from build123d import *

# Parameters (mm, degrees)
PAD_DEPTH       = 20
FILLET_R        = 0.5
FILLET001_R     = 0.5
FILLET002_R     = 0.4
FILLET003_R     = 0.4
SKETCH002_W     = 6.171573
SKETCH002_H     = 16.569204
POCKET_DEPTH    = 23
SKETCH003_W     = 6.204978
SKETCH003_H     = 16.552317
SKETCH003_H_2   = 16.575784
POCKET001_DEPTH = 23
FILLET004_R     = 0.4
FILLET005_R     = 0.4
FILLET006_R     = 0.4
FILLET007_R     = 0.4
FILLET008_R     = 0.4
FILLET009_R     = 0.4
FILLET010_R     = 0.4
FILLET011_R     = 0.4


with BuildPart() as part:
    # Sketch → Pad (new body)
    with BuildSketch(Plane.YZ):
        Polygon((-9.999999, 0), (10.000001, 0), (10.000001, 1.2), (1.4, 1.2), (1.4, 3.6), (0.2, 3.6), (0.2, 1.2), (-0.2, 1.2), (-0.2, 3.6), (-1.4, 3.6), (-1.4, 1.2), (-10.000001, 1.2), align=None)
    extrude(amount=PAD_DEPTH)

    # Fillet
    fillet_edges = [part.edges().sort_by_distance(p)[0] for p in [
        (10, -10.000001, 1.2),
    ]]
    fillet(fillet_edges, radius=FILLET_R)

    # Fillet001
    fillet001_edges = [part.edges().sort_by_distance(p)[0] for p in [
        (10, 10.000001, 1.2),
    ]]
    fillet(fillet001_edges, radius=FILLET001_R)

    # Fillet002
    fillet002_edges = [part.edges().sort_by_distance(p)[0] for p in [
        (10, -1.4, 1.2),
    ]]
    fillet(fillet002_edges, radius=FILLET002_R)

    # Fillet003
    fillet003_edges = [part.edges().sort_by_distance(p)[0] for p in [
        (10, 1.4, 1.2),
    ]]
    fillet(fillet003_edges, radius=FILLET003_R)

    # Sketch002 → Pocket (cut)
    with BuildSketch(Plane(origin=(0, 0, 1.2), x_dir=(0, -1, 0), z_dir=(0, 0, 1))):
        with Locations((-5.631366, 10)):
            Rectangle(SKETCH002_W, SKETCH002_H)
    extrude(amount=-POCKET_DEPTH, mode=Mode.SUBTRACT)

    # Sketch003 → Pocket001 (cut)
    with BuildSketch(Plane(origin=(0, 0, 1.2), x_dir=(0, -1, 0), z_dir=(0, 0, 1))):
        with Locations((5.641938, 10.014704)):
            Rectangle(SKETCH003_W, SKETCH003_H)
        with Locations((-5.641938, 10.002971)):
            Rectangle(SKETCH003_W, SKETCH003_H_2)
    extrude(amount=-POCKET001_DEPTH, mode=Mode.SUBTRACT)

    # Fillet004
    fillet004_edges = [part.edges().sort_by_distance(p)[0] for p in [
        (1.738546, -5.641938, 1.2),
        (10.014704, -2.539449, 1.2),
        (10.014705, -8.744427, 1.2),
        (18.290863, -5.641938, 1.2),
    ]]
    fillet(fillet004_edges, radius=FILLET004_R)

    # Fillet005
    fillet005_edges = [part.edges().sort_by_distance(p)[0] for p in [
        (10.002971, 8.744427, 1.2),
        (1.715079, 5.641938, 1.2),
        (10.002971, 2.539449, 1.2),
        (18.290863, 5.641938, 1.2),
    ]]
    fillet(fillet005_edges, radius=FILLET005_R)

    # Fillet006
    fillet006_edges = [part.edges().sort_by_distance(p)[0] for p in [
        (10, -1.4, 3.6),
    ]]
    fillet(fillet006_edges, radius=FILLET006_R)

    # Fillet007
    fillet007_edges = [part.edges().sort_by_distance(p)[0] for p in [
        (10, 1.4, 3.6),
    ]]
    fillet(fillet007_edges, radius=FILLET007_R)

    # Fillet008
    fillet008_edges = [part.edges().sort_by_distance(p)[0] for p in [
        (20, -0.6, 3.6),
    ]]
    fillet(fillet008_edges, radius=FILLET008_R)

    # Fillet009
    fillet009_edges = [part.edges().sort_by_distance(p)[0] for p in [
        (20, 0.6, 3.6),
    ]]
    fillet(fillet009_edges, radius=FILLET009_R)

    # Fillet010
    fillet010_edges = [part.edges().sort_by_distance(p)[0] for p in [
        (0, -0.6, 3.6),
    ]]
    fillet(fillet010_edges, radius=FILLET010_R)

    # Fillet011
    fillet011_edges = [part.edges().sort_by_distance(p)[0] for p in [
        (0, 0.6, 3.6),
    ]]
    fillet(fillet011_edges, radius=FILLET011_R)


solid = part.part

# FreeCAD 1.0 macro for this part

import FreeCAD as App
import Part
import Sketcher


def edges_at(feature, points):
    """Names of the edges that pass closest to the given points."""
    edges = feature.Shape.Edges
    near = lambda p: min(range(len(edges)), key=lambda i: edges[i].distToShape(Part.Vertex(*p))[0])
    return sorted({f"Edge{near(p) + 1}" for p in points})


def add_polygon(sketch, points):
    """Adds a closed chain of lines whose ends are joined by coincident constraints."""
    first, n = sketch.GeometryCount, len(points)
    for a, b in zip(points, points[1:] + points[:1]):
        sketch.addGeometry(Part.LineSegment(App.Vector(*a, 0), App.Vector(*b, 0)), False)
    for i in range(n):
        sketch.addConstraint(Sketcher.Constraint("Coincident", first + i, 2, first + (i + 1) % n, 1))

doc = App.newDocument("Part")
body = doc.addObject("PartDesign::Body", "Body")

# Sketch on YZ plane
sketch1 = body.newObject("Sketcher::SketchObject", "Sketch")
sketch1.AttachmentSupport = (doc.getObject("YZ_Plane"), [""])
sketch1.MapMode = "FlatFace"
add_polygon(sketch1, [(-10, 0), (10, 0), (10, 1.2), (1.4, 1.2), (1.4, 3.6), (0.2, 3.6), (0.2, 1.2), (-0.2, 1.2), (-0.2, 3.6), (-1.4, 3.6), (-1.4, 1.2), (-10, 1.2)])  # lines 0-11
sketch1.addConstraint([
    Sketcher.Constraint("Horizontal", 0),
    Sketcher.Constraint("Vertical", 1),
    Sketcher.Constraint("Horizontal", 2),
    Sketcher.Constraint("Vertical", 3),
    Sketcher.Constraint("Horizontal", 4),
    Sketcher.Constraint("Vertical", 5),
    Sketcher.Constraint("Horizontal", 6),
    Sketcher.Constraint("Vertical", 7),
    Sketcher.Constraint("Horizontal", 8),
    Sketcher.Constraint("Vertical", 9),
    Sketcher.Constraint("Horizontal", 10),
    Sketcher.Constraint("Vertical", 11),
    Sketcher.Constraint("Symmetric", 0, 2, 11, 2, -1, 1),
    Sketcher.Constraint("Symmetric", 4, 2, 7, 2, -2),
    Sketcher.Constraint("Symmetric", 2, 2, 9, 2, -2),
    Sketcher.Constraint("Horizontal", 2, 2, 5, 2),
    Sketcher.Constraint("Equal", 8, 1),
    Sketcher.Constraint("DistanceX", 0, 1, 0, 2, 20.0),
    Sketcher.Constraint("DistanceX", 2, 2, 2, 1, 8.600001),
    Sketcher.Constraint("DistanceX", 4, 2, 4, 1, 1.2),
    Sketcher.Constraint("DistanceY", 3, 1, 3, 2, 2.4),
])
pad1 = body.newObject("PartDesign::Pad", "Pad")
pad1.Profile = sketch1
pad1.Length = 20
doc.recompute()

fillet = body.newObject("PartDesign::Fillet", "Fillet")
fillet.Base = (pad1, edges_at(pad1, [(10, -10, 1.2)]))
fillet.Radius = 0.5
doc.recompute()

fillet2 = body.newObject("PartDesign::Fillet", "Fillet001")
fillet2.Base = (fillet, edges_at(fillet, [(10, 10, 1.2)]))
fillet2.Radius = 0.5
doc.recompute()

fillet3 = body.newObject("PartDesign::Fillet", "Fillet002")
fillet3.Base = (fillet2, edges_at(fillet2, [(10, -1.4, 1.2)]))
fillet3.Radius = 0.4
doc.recompute()

fillet4 = body.newObject("PartDesign::Fillet", "Fillet003")
fillet4.Base = (fillet3, edges_at(fillet3, [(10, 1.4, 1.2)]))
fillet4.Radius = 0.4

# Sketch on XY plane
sketch2 = body.newObject("Sketcher::SketchObject", "Sketch001")
sketch2.AttachmentSupport = (doc.getObject("XY_Plane"), [""])
sketch2.MapMode = "FlatFace"
sketch2.AttachmentOffset = App.Placement(App.Vector(0, 0, 1.2), App.Rotation())
add_polygon(sketch2, [(18, 9), (2, 9), (2, 3), (18, 3)])  # lines 0-3
sketch2.addConstraint([
    Sketcher.Constraint("Horizontal", 0),
    Sketcher.Constraint("Vertical", 1),
    Sketcher.Constraint("Horizontal", 2),
    Sketcher.Constraint("Vertical", 3),
    Sketcher.Constraint("DistanceX", -1, 1, 2, 2, 18.284602),
    Sketcher.Constraint("DistanceX", 0, 2, 0, 1, 16.569204),
    Sketcher.Constraint("DistanceY", 1, 2, 1, 1, 6.171573),
    Sketcher.Constraint("DistanceY", -1, 1, 1, 2, 2.54558),
])
pocket1 = body.newObject("PartDesign::Pocket", "Pocket")
pocket1.Profile = sketch2
pocket1.Length = 23

# Sketch on XY plane
sketch3 = body.newObject("Sketcher::SketchObject", "Sketch002")
sketch3.AttachmentSupport = (doc.getObject("XY_Plane"), [""])
sketch3.MapMode = "FlatFace"
sketch3.AttachmentOffset = App.Placement(App.Vector(0, 0, 1.2), App.Rotation())
add_polygon(sketch3, [(18, -3), (2, -3), (2, -9), (18, -9)])  # lines 0-3
add_polygon(sketch3, [(18, 9), (2, 9), (2, 3), (18, 3)])  # lines 4-7
sketch3.addConstraint([
    Sketcher.Constraint("Horizontal", 0),
    Sketcher.Constraint("Vertical", 1),
    Sketcher.Constraint("Horizontal", 2),
    Sketcher.Constraint("Vertical", 3),
    Sketcher.Constraint("Horizontal", 4),
    Sketcher.Constraint("Vertical", 5),
    Sketcher.Constraint("Horizontal", 6),
    Sketcher.Constraint("Vertical", 7),
    Sketcher.Constraint("Symmetric", 3, 2, 6, 2, -1),
    Sketcher.Constraint("Equal", 3, 5),
    Sketcher.Constraint("DistanceY", 1, 2, 1, 1, 6.204978),
    Sketcher.Constraint("DistanceX", 0, 2, 0, 1, 16.552317),
    Sketcher.Constraint("DistanceX", 4, 2, 4, 1, 16.575784),
    Sketcher.Constraint("DistanceY", 0, 2, -1, 1, 2.539449),
    Sketcher.Constraint("DistanceX", -1, 1, 4, 2, 1.715079),
])
pocket2 = body.newObject("PartDesign::Pocket", "Pocket001")
pocket2.Profile = sketch3
pocket2.Length = 23
doc.recompute()

fillet5 = body.newObject("PartDesign::Fillet", "Fillet004")
fillet5.Base = (pocket2, edges_at(pocket2, [
    (1.739, -5.642, 1.2),
    (10.015, -2.539, 1.2),
    (10.015, -8.744, 1.2),
    (18.291, -5.642, 1.2),
]))
fillet5.Radius = 0.4
doc.recompute()

fillet6 = body.newObject("PartDesign::Fillet", "Fillet005")
fillet6.Base = (fillet5, edges_at(fillet5, [
    (10.003, 8.744, 1.2),
    (1.715, 5.642, 1.2),
    (10.003, 2.539, 1.2),
    (18.291, 5.642, 1.2),
]))
fillet6.Radius = 0.4
doc.recompute()

fillet7 = body.newObject("PartDesign::Fillet", "Fillet006")
fillet7.Base = (fillet6, edges_at(fillet6, [(10, -1.4, 3.6)]))
fillet7.Radius = 0.4
doc.recompute()

fillet8 = body.newObject("PartDesign::Fillet", "Fillet007")
fillet8.Base = (fillet7, edges_at(fillet7, [(10, 1.4, 3.6)]))
fillet8.Radius = 0.4
doc.recompute()

fillet9 = body.newObject("PartDesign::Fillet", "Fillet008")
fillet9.Base = (fillet8, edges_at(fillet8, [(20, -0.6, 3.6)]))
fillet9.Radius = 0.4
doc.recompute()

fillet10 = body.newObject("PartDesign::Fillet", "Fillet009")
fillet10.Base = (fillet9, edges_at(fillet9, [(20, 0.6, 3.6)]))
fillet10.Radius = 0.4
doc.recompute()

fillet11 = body.newObject("PartDesign::Fillet", "Fillet010")
fillet11.Base = (fillet10, edges_at(fillet10, [(0, -0.6, 3.6)]))
fillet11.Radius = 0.4
doc.recompute()

fillet12 = body.newObject("PartDesign::Fillet", "Fillet011")
fillet12.Base = (fillet11, edges_at(fillet11, [(0, 0.6, 3.6)]))
fillet12.Radius = 0.4

doc.recompute()
